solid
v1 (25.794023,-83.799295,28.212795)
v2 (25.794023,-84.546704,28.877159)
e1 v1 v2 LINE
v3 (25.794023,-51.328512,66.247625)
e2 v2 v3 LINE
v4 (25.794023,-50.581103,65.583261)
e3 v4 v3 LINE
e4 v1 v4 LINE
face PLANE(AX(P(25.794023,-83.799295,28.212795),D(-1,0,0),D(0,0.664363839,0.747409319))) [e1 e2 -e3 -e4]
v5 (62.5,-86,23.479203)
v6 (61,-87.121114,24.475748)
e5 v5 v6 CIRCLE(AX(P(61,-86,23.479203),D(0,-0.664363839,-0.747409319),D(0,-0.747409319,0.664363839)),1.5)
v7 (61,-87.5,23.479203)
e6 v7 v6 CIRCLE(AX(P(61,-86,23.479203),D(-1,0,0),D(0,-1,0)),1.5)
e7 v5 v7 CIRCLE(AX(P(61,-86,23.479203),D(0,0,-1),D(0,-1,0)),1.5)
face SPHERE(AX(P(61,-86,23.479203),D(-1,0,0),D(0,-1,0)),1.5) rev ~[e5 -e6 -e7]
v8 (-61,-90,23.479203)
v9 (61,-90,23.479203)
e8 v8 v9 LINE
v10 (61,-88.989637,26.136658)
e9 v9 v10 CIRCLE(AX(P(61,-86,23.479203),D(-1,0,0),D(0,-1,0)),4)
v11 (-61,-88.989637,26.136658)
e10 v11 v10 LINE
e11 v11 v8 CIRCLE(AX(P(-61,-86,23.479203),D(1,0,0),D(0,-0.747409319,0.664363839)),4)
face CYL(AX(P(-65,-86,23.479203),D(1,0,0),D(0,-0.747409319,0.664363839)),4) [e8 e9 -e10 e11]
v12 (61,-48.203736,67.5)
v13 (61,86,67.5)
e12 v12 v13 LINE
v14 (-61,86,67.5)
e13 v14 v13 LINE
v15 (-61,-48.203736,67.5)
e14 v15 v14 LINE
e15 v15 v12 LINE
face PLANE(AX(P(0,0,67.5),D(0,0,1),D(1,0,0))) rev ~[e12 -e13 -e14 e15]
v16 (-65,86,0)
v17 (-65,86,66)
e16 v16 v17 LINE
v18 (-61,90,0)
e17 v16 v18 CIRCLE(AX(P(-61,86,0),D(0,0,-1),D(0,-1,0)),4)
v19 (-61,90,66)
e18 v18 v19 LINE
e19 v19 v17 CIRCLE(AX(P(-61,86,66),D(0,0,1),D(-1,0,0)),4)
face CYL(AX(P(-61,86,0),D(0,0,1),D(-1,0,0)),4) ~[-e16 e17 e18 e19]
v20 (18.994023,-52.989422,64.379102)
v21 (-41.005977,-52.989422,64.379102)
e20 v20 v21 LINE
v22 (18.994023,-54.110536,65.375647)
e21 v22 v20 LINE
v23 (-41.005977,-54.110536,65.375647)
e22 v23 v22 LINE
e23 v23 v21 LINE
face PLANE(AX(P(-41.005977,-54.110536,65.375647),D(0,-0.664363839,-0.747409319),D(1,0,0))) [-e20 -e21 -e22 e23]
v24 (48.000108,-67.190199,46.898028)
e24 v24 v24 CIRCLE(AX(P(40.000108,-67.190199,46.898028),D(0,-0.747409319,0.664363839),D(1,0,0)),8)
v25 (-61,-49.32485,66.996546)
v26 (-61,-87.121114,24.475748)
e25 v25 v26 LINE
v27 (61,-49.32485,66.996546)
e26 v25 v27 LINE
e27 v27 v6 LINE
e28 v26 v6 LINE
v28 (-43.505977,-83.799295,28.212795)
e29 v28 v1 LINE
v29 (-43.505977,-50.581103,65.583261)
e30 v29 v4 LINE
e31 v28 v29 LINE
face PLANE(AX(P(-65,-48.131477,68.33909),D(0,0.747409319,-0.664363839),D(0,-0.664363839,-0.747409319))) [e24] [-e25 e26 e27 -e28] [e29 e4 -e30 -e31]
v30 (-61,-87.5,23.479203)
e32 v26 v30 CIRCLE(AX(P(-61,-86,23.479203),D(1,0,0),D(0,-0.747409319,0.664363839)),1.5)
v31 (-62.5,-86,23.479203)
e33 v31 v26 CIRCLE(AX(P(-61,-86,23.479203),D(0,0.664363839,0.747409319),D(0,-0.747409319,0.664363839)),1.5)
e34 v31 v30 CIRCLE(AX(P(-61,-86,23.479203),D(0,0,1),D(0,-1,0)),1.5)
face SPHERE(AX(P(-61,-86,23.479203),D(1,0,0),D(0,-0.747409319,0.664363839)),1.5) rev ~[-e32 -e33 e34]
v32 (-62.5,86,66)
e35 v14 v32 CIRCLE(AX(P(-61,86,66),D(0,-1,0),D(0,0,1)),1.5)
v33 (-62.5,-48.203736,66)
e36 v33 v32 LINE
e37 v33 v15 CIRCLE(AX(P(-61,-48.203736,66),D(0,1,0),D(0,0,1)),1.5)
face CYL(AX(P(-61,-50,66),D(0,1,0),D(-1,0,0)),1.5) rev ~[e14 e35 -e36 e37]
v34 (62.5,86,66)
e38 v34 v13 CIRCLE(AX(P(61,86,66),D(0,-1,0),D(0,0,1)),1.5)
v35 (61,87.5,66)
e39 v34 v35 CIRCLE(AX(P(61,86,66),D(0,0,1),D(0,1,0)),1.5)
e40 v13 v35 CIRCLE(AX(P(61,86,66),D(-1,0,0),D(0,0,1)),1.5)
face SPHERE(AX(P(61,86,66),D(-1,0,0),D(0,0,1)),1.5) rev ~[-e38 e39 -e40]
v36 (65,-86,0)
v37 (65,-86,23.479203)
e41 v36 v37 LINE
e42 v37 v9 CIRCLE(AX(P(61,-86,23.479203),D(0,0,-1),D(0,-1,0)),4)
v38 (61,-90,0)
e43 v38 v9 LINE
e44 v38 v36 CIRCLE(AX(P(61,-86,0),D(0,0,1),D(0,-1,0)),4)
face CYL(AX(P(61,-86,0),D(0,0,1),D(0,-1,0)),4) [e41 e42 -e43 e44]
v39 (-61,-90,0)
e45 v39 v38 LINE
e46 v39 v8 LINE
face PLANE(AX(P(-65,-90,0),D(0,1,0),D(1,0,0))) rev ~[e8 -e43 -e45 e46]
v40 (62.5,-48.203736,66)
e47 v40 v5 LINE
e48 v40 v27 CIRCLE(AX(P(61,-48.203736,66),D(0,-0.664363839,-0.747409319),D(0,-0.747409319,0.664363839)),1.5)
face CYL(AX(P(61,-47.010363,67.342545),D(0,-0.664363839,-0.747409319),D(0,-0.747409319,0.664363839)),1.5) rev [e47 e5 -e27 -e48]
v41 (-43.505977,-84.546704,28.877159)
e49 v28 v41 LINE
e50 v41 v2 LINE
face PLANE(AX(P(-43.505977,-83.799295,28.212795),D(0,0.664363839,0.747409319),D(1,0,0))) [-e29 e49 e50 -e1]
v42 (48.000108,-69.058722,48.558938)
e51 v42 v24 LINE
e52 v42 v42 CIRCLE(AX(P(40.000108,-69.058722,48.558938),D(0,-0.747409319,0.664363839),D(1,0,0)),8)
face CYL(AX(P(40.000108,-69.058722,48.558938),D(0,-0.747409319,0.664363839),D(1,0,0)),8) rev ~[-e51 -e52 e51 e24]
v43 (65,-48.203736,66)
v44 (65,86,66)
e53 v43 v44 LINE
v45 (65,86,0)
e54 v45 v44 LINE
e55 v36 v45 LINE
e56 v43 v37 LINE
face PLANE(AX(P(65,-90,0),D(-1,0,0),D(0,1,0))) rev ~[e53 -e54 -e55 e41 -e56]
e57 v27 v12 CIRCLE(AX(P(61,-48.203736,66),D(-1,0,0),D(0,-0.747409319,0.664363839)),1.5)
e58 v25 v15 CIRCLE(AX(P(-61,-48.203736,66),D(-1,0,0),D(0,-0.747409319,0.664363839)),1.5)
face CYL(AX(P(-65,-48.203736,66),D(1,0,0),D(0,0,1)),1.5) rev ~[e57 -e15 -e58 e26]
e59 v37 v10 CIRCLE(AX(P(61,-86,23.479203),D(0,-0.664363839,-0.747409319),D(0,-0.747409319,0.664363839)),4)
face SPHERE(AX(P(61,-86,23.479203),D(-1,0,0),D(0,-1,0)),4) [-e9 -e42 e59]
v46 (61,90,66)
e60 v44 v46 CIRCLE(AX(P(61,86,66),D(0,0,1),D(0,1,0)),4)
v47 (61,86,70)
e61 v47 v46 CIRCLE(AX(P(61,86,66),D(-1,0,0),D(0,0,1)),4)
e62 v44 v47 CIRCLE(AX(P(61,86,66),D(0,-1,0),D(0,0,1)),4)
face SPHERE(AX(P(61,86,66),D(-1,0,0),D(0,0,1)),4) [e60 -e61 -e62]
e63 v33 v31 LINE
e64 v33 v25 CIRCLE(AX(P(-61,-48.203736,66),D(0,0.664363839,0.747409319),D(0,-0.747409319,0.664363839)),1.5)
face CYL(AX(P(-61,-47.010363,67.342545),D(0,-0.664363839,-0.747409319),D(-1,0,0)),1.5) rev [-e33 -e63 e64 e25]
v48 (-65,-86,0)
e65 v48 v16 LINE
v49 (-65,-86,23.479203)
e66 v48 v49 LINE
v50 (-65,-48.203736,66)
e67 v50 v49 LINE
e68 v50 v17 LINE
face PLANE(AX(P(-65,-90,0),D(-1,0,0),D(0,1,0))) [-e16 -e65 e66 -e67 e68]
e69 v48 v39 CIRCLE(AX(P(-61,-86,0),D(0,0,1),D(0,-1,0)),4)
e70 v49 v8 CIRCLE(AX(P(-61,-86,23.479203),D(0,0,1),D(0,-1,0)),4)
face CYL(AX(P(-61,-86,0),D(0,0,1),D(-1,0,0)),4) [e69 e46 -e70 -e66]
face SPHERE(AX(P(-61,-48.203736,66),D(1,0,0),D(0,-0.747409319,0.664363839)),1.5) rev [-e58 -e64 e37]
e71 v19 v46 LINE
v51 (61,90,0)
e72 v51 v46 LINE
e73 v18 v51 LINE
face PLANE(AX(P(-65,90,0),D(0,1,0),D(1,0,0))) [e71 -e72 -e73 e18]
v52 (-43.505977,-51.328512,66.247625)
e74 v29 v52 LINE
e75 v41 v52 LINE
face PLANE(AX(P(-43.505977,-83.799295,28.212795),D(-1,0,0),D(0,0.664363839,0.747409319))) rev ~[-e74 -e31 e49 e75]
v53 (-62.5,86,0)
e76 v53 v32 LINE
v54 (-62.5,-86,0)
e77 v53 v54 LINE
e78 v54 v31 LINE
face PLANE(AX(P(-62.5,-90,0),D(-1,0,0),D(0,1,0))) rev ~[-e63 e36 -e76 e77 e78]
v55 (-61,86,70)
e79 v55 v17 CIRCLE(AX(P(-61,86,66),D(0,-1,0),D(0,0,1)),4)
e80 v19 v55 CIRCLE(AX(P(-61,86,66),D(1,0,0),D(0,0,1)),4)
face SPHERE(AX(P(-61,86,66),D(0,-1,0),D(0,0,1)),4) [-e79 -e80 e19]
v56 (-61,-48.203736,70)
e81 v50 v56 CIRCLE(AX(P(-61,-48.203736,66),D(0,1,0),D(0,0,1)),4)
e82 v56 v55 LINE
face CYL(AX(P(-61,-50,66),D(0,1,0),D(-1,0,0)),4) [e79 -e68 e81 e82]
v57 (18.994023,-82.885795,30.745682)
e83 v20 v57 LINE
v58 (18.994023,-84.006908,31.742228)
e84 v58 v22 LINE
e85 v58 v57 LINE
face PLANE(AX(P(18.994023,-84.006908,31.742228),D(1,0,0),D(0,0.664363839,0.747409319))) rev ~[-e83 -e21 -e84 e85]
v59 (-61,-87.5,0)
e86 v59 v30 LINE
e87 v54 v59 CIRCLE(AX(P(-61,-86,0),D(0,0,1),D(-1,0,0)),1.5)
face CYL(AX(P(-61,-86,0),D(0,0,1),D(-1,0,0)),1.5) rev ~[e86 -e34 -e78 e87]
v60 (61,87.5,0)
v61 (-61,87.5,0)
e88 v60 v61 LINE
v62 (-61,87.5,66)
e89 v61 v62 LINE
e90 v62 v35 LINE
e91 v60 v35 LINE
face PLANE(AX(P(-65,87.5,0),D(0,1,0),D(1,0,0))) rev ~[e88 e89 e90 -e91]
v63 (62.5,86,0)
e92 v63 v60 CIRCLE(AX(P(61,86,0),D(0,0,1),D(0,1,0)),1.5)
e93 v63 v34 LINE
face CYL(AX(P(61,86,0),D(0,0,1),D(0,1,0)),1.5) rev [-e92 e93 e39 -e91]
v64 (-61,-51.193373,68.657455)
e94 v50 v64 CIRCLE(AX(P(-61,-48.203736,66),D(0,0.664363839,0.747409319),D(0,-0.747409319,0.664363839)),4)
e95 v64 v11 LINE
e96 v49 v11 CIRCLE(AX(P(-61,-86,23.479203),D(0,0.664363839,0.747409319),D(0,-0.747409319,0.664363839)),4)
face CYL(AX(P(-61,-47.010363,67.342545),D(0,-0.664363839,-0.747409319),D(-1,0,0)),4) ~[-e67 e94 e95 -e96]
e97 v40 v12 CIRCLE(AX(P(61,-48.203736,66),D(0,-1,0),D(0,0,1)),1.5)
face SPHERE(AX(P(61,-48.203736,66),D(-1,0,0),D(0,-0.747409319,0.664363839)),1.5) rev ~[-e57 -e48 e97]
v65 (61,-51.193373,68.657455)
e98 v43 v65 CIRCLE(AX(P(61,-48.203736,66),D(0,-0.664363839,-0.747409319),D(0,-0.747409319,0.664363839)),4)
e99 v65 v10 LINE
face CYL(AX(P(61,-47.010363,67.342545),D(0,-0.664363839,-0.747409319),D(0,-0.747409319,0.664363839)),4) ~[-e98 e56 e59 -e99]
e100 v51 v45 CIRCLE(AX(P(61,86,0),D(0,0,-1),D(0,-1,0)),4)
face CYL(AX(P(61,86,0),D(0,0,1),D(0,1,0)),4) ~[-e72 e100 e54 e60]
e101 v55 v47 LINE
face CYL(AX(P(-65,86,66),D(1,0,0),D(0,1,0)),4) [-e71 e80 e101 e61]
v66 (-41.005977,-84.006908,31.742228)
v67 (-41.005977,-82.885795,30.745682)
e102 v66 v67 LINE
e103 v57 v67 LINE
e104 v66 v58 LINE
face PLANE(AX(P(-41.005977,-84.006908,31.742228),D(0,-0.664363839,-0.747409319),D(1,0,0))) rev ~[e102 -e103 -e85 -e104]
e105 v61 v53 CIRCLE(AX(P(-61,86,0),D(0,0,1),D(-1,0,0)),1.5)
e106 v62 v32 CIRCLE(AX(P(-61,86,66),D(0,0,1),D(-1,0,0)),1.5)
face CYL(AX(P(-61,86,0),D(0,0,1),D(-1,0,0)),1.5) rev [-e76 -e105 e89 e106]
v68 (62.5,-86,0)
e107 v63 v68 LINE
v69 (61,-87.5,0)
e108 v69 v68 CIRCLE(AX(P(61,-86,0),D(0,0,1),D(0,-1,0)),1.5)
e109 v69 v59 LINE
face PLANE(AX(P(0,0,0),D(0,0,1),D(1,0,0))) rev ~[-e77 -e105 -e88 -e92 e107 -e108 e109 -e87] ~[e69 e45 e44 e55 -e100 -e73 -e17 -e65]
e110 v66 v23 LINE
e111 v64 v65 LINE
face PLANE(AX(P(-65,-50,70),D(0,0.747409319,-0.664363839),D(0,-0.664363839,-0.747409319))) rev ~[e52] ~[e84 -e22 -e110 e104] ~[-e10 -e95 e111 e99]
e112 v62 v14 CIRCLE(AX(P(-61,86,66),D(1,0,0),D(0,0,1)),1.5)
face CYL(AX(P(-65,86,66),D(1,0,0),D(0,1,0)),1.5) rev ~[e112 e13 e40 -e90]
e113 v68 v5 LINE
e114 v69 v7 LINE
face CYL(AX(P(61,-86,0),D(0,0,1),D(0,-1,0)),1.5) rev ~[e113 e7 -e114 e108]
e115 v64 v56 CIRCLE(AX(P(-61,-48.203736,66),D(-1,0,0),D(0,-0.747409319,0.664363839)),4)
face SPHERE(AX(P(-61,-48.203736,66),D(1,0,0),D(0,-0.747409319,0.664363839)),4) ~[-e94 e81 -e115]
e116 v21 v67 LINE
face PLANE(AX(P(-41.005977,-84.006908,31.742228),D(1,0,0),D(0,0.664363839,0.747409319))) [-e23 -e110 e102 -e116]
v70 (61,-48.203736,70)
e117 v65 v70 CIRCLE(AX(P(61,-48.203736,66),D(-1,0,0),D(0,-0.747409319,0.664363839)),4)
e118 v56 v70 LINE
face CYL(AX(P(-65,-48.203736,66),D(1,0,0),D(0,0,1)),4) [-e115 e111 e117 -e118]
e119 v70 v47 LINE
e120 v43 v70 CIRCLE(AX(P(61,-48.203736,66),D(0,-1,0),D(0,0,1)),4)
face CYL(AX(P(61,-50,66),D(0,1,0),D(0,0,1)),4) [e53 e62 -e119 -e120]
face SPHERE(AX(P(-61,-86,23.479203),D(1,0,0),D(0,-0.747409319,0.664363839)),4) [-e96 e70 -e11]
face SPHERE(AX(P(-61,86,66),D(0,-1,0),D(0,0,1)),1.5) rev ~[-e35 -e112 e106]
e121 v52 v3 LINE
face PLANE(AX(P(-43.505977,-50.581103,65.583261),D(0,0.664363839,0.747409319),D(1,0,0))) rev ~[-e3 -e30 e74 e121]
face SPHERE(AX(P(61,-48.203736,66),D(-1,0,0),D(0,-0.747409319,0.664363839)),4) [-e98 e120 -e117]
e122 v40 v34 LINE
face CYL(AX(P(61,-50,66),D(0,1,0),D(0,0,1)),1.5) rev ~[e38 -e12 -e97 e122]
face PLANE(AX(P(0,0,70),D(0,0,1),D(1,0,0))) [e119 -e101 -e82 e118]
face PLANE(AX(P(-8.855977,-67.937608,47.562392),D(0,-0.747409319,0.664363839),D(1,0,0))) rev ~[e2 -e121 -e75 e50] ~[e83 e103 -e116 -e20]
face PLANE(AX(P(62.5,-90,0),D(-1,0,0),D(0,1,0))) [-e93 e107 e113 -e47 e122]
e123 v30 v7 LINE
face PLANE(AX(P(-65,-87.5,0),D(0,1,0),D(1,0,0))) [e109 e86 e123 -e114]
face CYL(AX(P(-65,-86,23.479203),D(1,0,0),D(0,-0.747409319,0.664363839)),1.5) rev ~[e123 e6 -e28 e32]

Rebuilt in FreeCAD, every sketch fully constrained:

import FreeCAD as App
import Part
import Sketcher


def edges_at(feature, points):
    """Names of the edges that pass closest to the given points."""
    edges = feature.Shape.Edges
    near = lambda p: min(range(len(edges)), key=lambda i: edges[i].distToShape(Part.Vertex(*p))[0])
    return sorted({f"Edge{near(p) + 1}" for p in points})


def faces_at(feature, points):
    """Names of the faces that lie closest to the given points."""
    faces = feature.Shape.Faces
    near = lambda p: min(range(len(faces)), key=lambda i: faces[i].distToShape(Part.Vertex(*p))[0])
    return sorted({f"Face{near(p) + 1}" for p in points})

doc = App.newDocument("Part")
body = doc.addObject("PartDesign::Body", "Body")

# Sketch on XY plane
sketch1 = doc.addObject("Sketcher::SketchObject", "Sketch")
body.addObject(sketch1)
sketch1.AttachmentSupport = (doc.XY_Plane, [""])
sketch1.MapMode = "FlatFace"
sketch1.addGeometry([
    Part.LineSegment(App.Vector(-65, 90, 0), App.Vector(-65, -90, 0)),
    Part.LineSegment(App.Vector(-65, -90, 0), App.Vector(65, -90, 0)),
    Part.LineSegment(App.Vector(65, -90, 0), App.Vector(65, 90, 0)),
    Part.LineSegment(App.Vector(65, 90, 0), App.Vector(-65, 90, 0)),
], False)
sketch1.addConstraint([
    Sketcher.Constraint("Coincident", 0, 2, 1, 1),
    Sketcher.Constraint("Coincident", 1, 2, 2, 1),
    Sketcher.Constraint("Coincident", 2, 2, 3, 1),
    Sketcher.Constraint("Coincident", 3, 2, 0, 1),
    Sketcher.Constraint("Vertical", 0),
    Sketcher.Constraint("Horizontal", 1),
    Sketcher.Constraint("Vertical", 2),
    Sketcher.Constraint("Horizontal", 3),
    Sketcher.Constraint("Symmetric", 0, 2, 2, 2, -1, 1),
    Sketcher.Constraint("DistanceX", 1, 1, 1, 2, 130.0),
    Sketcher.Constraint("DistanceY", 0, 2, 0, 1, 180.0),
])
pad1 = doc.addObject("PartDesign::Pad", "Pad")
body.addObject(pad1)
pad1.Profile = sketch1
pad1.Length = 70

# Sketch on YZ plane
sketch2 = doc.addObject("Sketcher::SketchObject", "Sketch001")
body.addObject(sketch2)
sketch2.AttachmentSupport = (doc.YZ_Plane, [""])
sketch2.MapMode = "FlatFace"
sketch2.AttachmentOffset = App.Placement(App.Vector(0, 0, -65), App.Rotation())
sketch2.addGeometry([
    Part.LineSegment(App.Vector(-50, 70, 0), App.Vector(-90, 25, 0)),
    Part.LineSegment(App.Vector(-90, 25, 0), App.Vector(-90, 70, 0)),
    Part.LineSegment(App.Vector(-90, 70, 0), App.Vector(-50, 70, 0)),
], False)
sketch2.addConstraint([
    Sketcher.Constraint("Coincident", 0, 2, 1, 1),
    Sketcher.Constraint("Coincident", 1, 2, 2, 1),
    Sketcher.Constraint("Coincident", 2, 2, 0, 1),
    Sketcher.Constraint("Vertical", 1),
    Sketcher.Constraint("Horizontal", 2),
    Sketcher.Constraint("DistanceX", 2, 1, 2, 2, 40.0),
    Sketcher.Constraint("DistanceY", 1, 1, 1, 2, 45.0),
    Sketcher.Constraint("DistanceX", 0, 2, -1, 1, 90.0),
    Sketcher.Constraint("DistanceY", -1, 1, 0, 2, 25.0),
])
pocket1 = doc.addObject("PartDesign::Pocket", "Pocket")
body.addObject(pocket1)
pocket1.Profile = sketch2
pocket1.Type = "ThroughAll"
pocket1.Reversed = True
doc.recompute()

fillet = doc.addObject("PartDesign::Fillet", "Fillet")
body.addObject(fillet)
fillet.Base = (pocket1, edges_at(pocket1, [
    (-65, 20, 70),
    (65, -90, 12.5),
    (-65, -90, 12.5),
    (0, -50, 70),
    (65, -70, 47.5),
    (0, -90, 25),
    (-65, -70, 47.5),
    (0, 90, 70),
    (65, 20, 70),
    (-65, 90, 35),
    (65, 90, 35),
]))
fillet.Radius = 4
doc.recompute()

thickness = doc.addObject("PartDesign::Thickness", "Thickness")
body.addObject(thickness)
thickness.Base = (fillet, faces_at(fillet, [(0, 0, 0)]))
thickness.Value = 2.5
thickness.Reversed = True
thickness.Join = "Intersection"

# Sketch on an angled plane
sketch3 = doc.addObject("Sketcher::SketchObject", "Sketch002")
body.addObject(sketch3)
sketch3.Placement = App.Placement(App.Vector(0, -62.689655, 55.724138), App.Rotation(App.Vector(1, 0, 0), App.Vector(0, 0.664363839, 0.747409319), App.Vector(0, -0.747409319, 0.664363839), "ZXY"))
sketch3.addGeometry([
    Part.Circle(App.Vector(40.000108, -9.586715, 0), App.Vector(0, 0, 1), 8),  # 0
    Part.LineSegment(App.Vector(-41.005977, 12.913285, 0), App.Vector(-41.005977, -32.086715, 0)),  # 1
    Part.LineSegment(App.Vector(-41.005977, -32.086715, 0), App.Vector(18.994023, -32.086715, 0)),  # 2
    Part.LineSegment(App.Vector(18.994023, -32.086715, 0), App.Vector(18.994023, 12.913285, 0)),  # 3
    Part.LineSegment(App.Vector(18.994023, 12.913285, 0), App.Vector(-41.005977, 12.913285, 0)),  # 4
], False)
sketch3.addConstraint([
    Sketcher.Constraint("Coincident", 1, 2, 2, 1),
    Sketcher.Constraint("Coincident", 2, 2, 3, 1),
    Sketcher.Constraint("Coincident", 3, 2, 4, 1),
    Sketcher.Constraint("Coincident", 4, 2, 1, 1),
    Sketcher.Constraint("Vertical", 1),
    Sketcher.Constraint("Horizontal", 2),
    Sketcher.Constraint("Vertical", 3),
    Sketcher.Constraint("Horizontal", 4),
    Sketcher.Constraint("Diameter", 0, 16.0),
    Sketcher.Constraint("DistanceX", 2, 1, 2, 2, 60.0),
    Sketcher.Constraint("DistanceY", 1, 2, 1, 1, 45.0),
    Sketcher.Constraint("DistanceY", 1, 2, 0, 3, 22.5),
    Sketcher.Constraint("DistanceX", -1, 1, 0, 3, 40.000108),
    Sketcher.Constraint("DistanceY", 0, 3, -1, 1, 9.586715),
    Sketcher.Constraint("DistanceX", 1, 2, -1, 1, 41.005977),
])
pocket2 = doc.addObject("PartDesign::Pocket", "Pocket001")
body.addObject(pocket2)
pocket2.Profile = sketch3
pocket2.Length = 10

# Sketch on an angled plane
sketch4 = doc.addObject("Sketcher::SketchObject", "Sketch003")
body.addObject(sketch4)
sketch4.Placement = App.Placement(App.Vector(0, -60.821132, 54.063228), App.Rotation(App.Vector(1, 0, 0), App.Vector(0, 0.664363839, 0.747409319), App.Vector(0, -0.747409319, 0.664363839), "ZXY"))
sketch4.addGeometry([
    Part.LineSegment(App.Vector(-43.505977, 15.413285, 0), App.Vector(-43.505977, -34.586715, 0)),
    Part.LineSegment(App.Vector(-43.505977, -34.586715, 0), App.Vector(25.794023, -34.586715, 0)),
    Part.LineSegment(App.Vector(25.794023, -34.586715, 0), App.Vector(25.794023, 15.413285, 0)),
    Part.LineSegment(App.Vector(25.794023, 15.413285, 0), App.Vector(-43.505977, 15.413285, 0)),
], False)
sketch4.addConstraint([
    Sketcher.Constraint("Coincident", 0, 2, 1, 1),
    Sketcher.Constraint("Coincident", 1, 2, 2, 1),
    Sketcher.Constraint("Coincident", 2, 2, 3, 1),
    Sketcher.Constraint("Coincident", 3, 2, 0, 1),
    Sketcher.Constraint("Vertical", 0),
    Sketcher.Constraint("Horizontal", 1),
    Sketcher.Constraint("Vertical", 2),
    Sketcher.Constraint("Horizontal", 3),
    Sketcher.Constraint("DistanceY", 0, 2, 0, 1, 50.0),
    Sketcher.Constraint("DistanceX", 1, 1, 1, 2, 69.3),
    Sketcher.Constraint("DistanceX", 0, 2, -1, 1, 43.505977),
    Sketcher.Constraint("DistanceY", 0, 2, -1, 1, 34.586715),
])
pocket3 = doc.addObject("PartDesign::Pocket", "Pocket002")
body.addObject(pocket3)
pocket3.Profile = sketch4
pocket3.Length = 1
pocket3.Reversed = True

doc.recompute()
